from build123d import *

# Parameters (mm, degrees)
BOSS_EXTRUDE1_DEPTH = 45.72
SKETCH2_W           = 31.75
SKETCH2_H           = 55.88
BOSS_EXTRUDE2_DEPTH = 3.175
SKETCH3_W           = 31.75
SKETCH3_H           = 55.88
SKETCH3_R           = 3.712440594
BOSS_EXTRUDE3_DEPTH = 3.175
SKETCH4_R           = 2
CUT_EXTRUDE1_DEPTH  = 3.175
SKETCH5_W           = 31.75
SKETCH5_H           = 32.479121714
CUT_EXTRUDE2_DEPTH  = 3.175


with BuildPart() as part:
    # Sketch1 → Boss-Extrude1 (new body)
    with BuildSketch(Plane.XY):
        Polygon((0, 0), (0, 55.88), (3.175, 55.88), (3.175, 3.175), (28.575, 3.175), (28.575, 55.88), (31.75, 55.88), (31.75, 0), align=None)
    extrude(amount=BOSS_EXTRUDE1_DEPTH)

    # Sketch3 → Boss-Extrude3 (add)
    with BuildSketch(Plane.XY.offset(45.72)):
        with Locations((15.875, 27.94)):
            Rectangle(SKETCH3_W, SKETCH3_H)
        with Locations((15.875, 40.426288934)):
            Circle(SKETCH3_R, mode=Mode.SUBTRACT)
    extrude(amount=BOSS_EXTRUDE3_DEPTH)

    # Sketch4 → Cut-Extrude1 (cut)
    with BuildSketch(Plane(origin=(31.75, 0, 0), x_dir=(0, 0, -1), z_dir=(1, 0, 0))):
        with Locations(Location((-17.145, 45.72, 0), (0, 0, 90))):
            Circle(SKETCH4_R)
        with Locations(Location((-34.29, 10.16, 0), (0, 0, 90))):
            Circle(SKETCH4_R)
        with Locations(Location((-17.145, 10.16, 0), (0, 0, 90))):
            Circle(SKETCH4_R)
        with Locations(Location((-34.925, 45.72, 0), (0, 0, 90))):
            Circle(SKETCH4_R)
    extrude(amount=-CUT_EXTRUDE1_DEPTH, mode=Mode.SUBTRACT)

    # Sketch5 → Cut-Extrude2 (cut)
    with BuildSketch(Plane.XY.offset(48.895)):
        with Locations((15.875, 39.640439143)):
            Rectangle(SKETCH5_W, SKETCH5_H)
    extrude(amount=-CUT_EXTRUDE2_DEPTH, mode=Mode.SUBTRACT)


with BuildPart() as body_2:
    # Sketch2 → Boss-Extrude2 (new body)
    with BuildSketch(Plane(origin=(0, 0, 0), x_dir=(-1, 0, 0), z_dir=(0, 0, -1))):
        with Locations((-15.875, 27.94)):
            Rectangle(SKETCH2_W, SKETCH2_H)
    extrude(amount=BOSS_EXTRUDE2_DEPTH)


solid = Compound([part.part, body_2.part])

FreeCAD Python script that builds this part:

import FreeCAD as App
import Part
import Sketcher
from FreeCAD import Vector
Q = App.Units.Quantity


def add_polygon(sketch, points):
    """Adds a closed chain of lines whose ends are joined by coincident constraints."""
    first, n = sketch.GeometryCount, len(points)
    for a, b in zip(points, points[1:] + points[:1]):
        sketch.addGeometry(Part.LineSegment(App.Vector(*a, 0), App.Vector(*b, 0)), False)
    for i in range(n):
        sketch.addConstraint(Sketcher.Constraint("Coincident", first + i, 2, first + (i + 1) % n, 1))

doc = App.newDocument("Part")
params = doc.addObject("Spreadsheet::Sheet", "Params")
for row, (alias, value) in enumerate([
    ("sketch1_width", "1 in"),
    ("sketch1_height", "2.2 in"),
    ("sketch1_width2", "1.25 in"),
    ("sketch1_height2", "2.075 in"),
    ("pad1_length", "1.8 in"),
    ("sketch2_height", "2.2 in"),
    ("sketch2_width", "1.25 in"),
    ("pad2_length", "0.125 in"),
    ("pocket1_length", "0.125 in"),
    ("sketch4_width", "1.25 in"),
    ("pocket2_length", "0.125 in"),
    ("sketch5_height", "2.2 in"),
    ("sketch5_width", "1.25 in"),
    ("pad3_length", "0.125 in"),
], start=1):
    params.set(f"A{row}", alias)
    params.set(f"B{row}", "=" + value)
    params.setAlias(f"B{row}", alias)

body = doc.addObject("PartDesign::Body", "Body")

sketch1 = body.newObject("Sketcher::SketchObject", "Sketch")
sketch1.AttachmentSupport = (doc.getObject("XY_Plane"), [""])
sketch1.MapMode = "FlatFace"
add_polygon(sketch1, [(0, 55.9), (0, 0), (31.8, 0), (31.8, 55.9), (28.6, 55.9), (28.6, 3.2), (3.2, 3.2), (3.2, 55.9)])
sketch1.addConstraint(Sketcher.Constraint("Vertical", 0))
sketch1.addConstraint(Sketcher.Constraint("Horizontal", 1))
sketch1.addConstraint(Sketcher.Constraint("Vertical", 2))
sketch1.addConstraint(Sketcher.Constraint("Horizontal", 3))
sketch1.addConstraint(Sketcher.Constraint("Vertical", 4))
sketch1.addConstraint(Sketcher.Constraint("Horizontal", 5))
sketch1.addConstraint(Sketcher.Constraint("Vertical", 6))
sketch1.addConstraint(Sketcher.Constraint("Horizontal", 7))
sketch1.addConstraint(Sketcher.Constraint("Coincident", 0, 2, -1, 1))
sketch1.addConstraint(Sketcher.Constraint("Horizontal", 3, 2, 6, 2))
sketch1.addConstraint(Sketcher.Constraint("Equal", 3, 7))
sketch1.addConstraint(Sketcher.Constraint("DistanceX", 5, 2, 5, 1, Q("1 in")))
sketch1.addConstraint(Sketcher.Constraint("DistanceY", 0, 2, 0, 1, Q("2.2 in")))
sketch1.addConstraint(Sketcher.Constraint("DistanceX", 1, 1, 1, 2, Q("1.25 in")))
sketch1.addConstraint(Sketcher.Constraint("DistanceY", 4, 2, 4, 1, Q("2.075 in")))
sketch1.setExpression("Constraints[19]", "Params.sketch1_width")
sketch1.setExpression("Constraints[20]", "Params.sketch1_height")
sketch1.setExpression("Constraints[21]", "Params.sketch1_width2")
sketch1.setExpression("Constraints[22]", "Params.sketch1_height2")
pad1 = body.newObject("PartDesign::Pad", "Pad")
pad1.Profile = sketch1
pad1.setExpression("Length", "Params.pad1_length")

sketch2 = body.newObject("Sketcher::SketchObject", "Sketch001")
sketch2.AttachmentSupport = (doc.getObject("XY_Plane"), [""])
sketch2.MapMode = "FlatFace"
sketch2.AttachmentOffset = App.Placement(Vector(0, 0, 1.8 * 25.4), App.Rotation())
add_polygon(sketch2, [(0, 55.9), (0, 0), (31.8, 0), (31.8, 55.9)])
sketch2.addGeometry(Part.Circle(Vector(15.9, 40.4, 0), Vector(0, 0, 1), 3.7), False)
sketch2.addConstraint(Sketcher.Constraint("Vertical", 0))
sketch2.addConstraint(Sketcher.Constraint("Horizontal", 1))
sketch2.addConstraint(Sketcher.Constraint("Vertical", 2))
sketch2.addConstraint(Sketcher.Constraint("Horizontal", 3))
sketch2.addConstraint(Sketcher.Constraint("Coincident", 0, 2, -1, 1))
sketch2.addConstraint(Sketcher.Constraint("DistanceY", 0, 2, 0, 1, Q("2.2 in")))
sketch2.addConstraint(Sketcher.Constraint("DistanceX", 1, 1, 1, 2, Q("1.25 in")))
sketch2.addConstraint(Sketcher.Constraint("Diameter", 4, 7.424881))
sketch2.addConstraint(Sketcher.Constraint("DistanceX", -1, 1, 4, 3, Q("0.625 in")))
sketch2.addConstraint(Sketcher.Constraint("DistanceY", -1, 1, 4, 3, 40.426289))
sketch2.setExpression("Constraints[9]", "Params.sketch2_height")
sketch2.setExpression("Constraints[10]", "Params.sketch2_width")
pad2 = body.newObject("PartDesign::Pad", "Pad001")
pad2.Profile = sketch2
pad2.setExpression("Length", "Params.pad2_length")

sketch3 = body.newObject("Sketcher::SketchObject", "Sketch002")
sketch3.AttachmentSupport = (doc.getObject("YZ_Plane"), [""])
sketch3.MapMode = "FlatFace"
sketch3.AttachmentOffset = App.Placement(Vector(0, 0, 1.25 * 25.4), App.Rotation())
sketch3.addGeometry(Part.Circle(Vector(45.7, 17.1, 0), Vector(0, 0, 1), 2), False)
sketch3.addGeometry(Part.Circle(Vector(10.2, 34.3, 0), Vector(0, 0, 1), 2), False)
sketch3.addGeometry(Part.Circle(Vector(10.2, 17.1, 0), Vector(0, 0, 1), 2), False)
sketch3.addGeometry(Part.Circle(Vector(45.7, 34.9, 0), Vector(0, 0, 1), 2), False)
sketch3.addConstraint(Sketcher.Constraint("Equal", 0, 1))
sketch3.addConstraint(Sketcher.Constraint("Equal", 1, 2))
sketch3.addConstraint(Sketcher.Constraint("Equal", 2, 3))
sketch3.addConstraint(Sketcher.Constraint("Horizontal", 0, 3, 2, 3))
sketch3.addConstraint(Sketcher.Constraint("Vertical", 1, 3, 2, 3))
sketch3.addConstraint(Sketcher.Constraint("Vertical", 0, 3, 3, 3))
sketch3.addConstraint(Sketcher.Constraint("DistanceX", -1, 1, 0, 3, Q("1.8 in")))
sketch3.addConstraint(Sketcher.Constraint("DistanceX", -1, 1, 1, 3, Q("0.4 in")))
sketch3.addConstraint(Sketcher.Constraint("DistanceY", 0, 3, 3, 3, Q("0.7 in")))
sketch3.addConstraint(Sketcher.Constraint("Diameter", 0, 4.0))
sketch3.addConstraint(Sketcher.Constraint("DistanceY", -1, 1, 1, 3, Q("1.35 in")))
sketch3.addConstraint(Sketcher.Constraint("DistanceY", -1, 1, 0, 3, Q("0.675 in")))
pocket1 = body.newObject("PartDesign::Pocket", "Pocket")
pocket1.Profile = sketch3
pocket1.setExpression("Length", "Params.pocket1_length")

sketch4 = body.newObject("Sketcher::SketchObject", "Sketch003")
sketch4.AttachmentSupport = (doc.getObject("XY_Plane"), [""])
sketch4.MapMode = "FlatFace"
sketch4.AttachmentOffset = App.Placement(Vector(0, 0, 1.925 * 25.4), App.Rotation())
add_polygon(sketch4, [(0, 56), (0, 23), (32, 23), (32, 56)])
sketch4.addConstraint(Sketcher.Constraint("Vertical", 0))
sketch4.addConstraint(Sketcher.Constraint("Horizontal", 1))
sketch4.addConstraint(Sketcher.Constraint("Vertical", 2))
sketch4.addConstraint(Sketcher.Constraint("Horizontal", 3))
sketch4.addConstraint(Sketcher.Constraint("PointOnObject", 0, 2, -2))
sketch4.addConstraint(Sketcher.Constraint("DistanceX", 1, 1, 1, 2, Q("1.25 in")))
sketch4.addConstraint(Sketcher.Constraint("DistanceY", -1, 1, 2, 2, Q("2.2 in")))
sketch4.addConstraint(Sketcher.Constraint("DistanceY", 0, 2, 0, 1, 32.479122))
sketch4.setExpression("Constraints[9]", "Params.sketch4_width")
pocket2 = body.newObject("PartDesign::Pocket", "Pocket001")
pocket2.Profile = sketch4
pocket2.setExpression("Length", "Params.pocket2_length")
body2 = doc.addObject("PartDesign::Body", "Body001")

sketch5 = body2.newObject("Sketcher::SketchObject", "Sketch004")
sketch5.AttachmentSupport = (doc.getObject("XY_Plane001"), [""])
sketch5.MapMode = "FlatFace"
add_polygon(sketch5, [(32, 56), (32, 0), (0, 0), (0, 56)])
sketch5.addConstraint(Sketcher.Constraint("Vertical", 0))
sketch5.addConstraint(Sketcher.Constraint("Horizontal", 1))
sketch5.addConstraint(Sketcher.Constraint("Vertical", 2))
sketch5.addConstraint(Sketcher.Constraint("Horizontal", 3))
sketch5.addConstraint(Sketcher.Constraint("Coincident", 1, 2, -1, 1))
sketch5.addConstraint(Sketcher.Constraint("DistanceY", 0, 2, 0, 1, Q("2.2 in")))
sketch5.addConstraint(Sketcher.Constraint("DistanceX", 1, 2, 1, 1, Q("1.25 in")))
sketch5.setExpression("Constraints[9]", "Params.sketch5_height")
sketch5.setExpression("Constraints[10]", "Params.sketch5_width")
pad3 = body2.newObject("PartDesign::Pad", "Pad002")
pad3.Profile = sketch5
pad3.setExpression("Length", "Params.pad3_length")
pad3.Reversed = True

doc.recompute()
